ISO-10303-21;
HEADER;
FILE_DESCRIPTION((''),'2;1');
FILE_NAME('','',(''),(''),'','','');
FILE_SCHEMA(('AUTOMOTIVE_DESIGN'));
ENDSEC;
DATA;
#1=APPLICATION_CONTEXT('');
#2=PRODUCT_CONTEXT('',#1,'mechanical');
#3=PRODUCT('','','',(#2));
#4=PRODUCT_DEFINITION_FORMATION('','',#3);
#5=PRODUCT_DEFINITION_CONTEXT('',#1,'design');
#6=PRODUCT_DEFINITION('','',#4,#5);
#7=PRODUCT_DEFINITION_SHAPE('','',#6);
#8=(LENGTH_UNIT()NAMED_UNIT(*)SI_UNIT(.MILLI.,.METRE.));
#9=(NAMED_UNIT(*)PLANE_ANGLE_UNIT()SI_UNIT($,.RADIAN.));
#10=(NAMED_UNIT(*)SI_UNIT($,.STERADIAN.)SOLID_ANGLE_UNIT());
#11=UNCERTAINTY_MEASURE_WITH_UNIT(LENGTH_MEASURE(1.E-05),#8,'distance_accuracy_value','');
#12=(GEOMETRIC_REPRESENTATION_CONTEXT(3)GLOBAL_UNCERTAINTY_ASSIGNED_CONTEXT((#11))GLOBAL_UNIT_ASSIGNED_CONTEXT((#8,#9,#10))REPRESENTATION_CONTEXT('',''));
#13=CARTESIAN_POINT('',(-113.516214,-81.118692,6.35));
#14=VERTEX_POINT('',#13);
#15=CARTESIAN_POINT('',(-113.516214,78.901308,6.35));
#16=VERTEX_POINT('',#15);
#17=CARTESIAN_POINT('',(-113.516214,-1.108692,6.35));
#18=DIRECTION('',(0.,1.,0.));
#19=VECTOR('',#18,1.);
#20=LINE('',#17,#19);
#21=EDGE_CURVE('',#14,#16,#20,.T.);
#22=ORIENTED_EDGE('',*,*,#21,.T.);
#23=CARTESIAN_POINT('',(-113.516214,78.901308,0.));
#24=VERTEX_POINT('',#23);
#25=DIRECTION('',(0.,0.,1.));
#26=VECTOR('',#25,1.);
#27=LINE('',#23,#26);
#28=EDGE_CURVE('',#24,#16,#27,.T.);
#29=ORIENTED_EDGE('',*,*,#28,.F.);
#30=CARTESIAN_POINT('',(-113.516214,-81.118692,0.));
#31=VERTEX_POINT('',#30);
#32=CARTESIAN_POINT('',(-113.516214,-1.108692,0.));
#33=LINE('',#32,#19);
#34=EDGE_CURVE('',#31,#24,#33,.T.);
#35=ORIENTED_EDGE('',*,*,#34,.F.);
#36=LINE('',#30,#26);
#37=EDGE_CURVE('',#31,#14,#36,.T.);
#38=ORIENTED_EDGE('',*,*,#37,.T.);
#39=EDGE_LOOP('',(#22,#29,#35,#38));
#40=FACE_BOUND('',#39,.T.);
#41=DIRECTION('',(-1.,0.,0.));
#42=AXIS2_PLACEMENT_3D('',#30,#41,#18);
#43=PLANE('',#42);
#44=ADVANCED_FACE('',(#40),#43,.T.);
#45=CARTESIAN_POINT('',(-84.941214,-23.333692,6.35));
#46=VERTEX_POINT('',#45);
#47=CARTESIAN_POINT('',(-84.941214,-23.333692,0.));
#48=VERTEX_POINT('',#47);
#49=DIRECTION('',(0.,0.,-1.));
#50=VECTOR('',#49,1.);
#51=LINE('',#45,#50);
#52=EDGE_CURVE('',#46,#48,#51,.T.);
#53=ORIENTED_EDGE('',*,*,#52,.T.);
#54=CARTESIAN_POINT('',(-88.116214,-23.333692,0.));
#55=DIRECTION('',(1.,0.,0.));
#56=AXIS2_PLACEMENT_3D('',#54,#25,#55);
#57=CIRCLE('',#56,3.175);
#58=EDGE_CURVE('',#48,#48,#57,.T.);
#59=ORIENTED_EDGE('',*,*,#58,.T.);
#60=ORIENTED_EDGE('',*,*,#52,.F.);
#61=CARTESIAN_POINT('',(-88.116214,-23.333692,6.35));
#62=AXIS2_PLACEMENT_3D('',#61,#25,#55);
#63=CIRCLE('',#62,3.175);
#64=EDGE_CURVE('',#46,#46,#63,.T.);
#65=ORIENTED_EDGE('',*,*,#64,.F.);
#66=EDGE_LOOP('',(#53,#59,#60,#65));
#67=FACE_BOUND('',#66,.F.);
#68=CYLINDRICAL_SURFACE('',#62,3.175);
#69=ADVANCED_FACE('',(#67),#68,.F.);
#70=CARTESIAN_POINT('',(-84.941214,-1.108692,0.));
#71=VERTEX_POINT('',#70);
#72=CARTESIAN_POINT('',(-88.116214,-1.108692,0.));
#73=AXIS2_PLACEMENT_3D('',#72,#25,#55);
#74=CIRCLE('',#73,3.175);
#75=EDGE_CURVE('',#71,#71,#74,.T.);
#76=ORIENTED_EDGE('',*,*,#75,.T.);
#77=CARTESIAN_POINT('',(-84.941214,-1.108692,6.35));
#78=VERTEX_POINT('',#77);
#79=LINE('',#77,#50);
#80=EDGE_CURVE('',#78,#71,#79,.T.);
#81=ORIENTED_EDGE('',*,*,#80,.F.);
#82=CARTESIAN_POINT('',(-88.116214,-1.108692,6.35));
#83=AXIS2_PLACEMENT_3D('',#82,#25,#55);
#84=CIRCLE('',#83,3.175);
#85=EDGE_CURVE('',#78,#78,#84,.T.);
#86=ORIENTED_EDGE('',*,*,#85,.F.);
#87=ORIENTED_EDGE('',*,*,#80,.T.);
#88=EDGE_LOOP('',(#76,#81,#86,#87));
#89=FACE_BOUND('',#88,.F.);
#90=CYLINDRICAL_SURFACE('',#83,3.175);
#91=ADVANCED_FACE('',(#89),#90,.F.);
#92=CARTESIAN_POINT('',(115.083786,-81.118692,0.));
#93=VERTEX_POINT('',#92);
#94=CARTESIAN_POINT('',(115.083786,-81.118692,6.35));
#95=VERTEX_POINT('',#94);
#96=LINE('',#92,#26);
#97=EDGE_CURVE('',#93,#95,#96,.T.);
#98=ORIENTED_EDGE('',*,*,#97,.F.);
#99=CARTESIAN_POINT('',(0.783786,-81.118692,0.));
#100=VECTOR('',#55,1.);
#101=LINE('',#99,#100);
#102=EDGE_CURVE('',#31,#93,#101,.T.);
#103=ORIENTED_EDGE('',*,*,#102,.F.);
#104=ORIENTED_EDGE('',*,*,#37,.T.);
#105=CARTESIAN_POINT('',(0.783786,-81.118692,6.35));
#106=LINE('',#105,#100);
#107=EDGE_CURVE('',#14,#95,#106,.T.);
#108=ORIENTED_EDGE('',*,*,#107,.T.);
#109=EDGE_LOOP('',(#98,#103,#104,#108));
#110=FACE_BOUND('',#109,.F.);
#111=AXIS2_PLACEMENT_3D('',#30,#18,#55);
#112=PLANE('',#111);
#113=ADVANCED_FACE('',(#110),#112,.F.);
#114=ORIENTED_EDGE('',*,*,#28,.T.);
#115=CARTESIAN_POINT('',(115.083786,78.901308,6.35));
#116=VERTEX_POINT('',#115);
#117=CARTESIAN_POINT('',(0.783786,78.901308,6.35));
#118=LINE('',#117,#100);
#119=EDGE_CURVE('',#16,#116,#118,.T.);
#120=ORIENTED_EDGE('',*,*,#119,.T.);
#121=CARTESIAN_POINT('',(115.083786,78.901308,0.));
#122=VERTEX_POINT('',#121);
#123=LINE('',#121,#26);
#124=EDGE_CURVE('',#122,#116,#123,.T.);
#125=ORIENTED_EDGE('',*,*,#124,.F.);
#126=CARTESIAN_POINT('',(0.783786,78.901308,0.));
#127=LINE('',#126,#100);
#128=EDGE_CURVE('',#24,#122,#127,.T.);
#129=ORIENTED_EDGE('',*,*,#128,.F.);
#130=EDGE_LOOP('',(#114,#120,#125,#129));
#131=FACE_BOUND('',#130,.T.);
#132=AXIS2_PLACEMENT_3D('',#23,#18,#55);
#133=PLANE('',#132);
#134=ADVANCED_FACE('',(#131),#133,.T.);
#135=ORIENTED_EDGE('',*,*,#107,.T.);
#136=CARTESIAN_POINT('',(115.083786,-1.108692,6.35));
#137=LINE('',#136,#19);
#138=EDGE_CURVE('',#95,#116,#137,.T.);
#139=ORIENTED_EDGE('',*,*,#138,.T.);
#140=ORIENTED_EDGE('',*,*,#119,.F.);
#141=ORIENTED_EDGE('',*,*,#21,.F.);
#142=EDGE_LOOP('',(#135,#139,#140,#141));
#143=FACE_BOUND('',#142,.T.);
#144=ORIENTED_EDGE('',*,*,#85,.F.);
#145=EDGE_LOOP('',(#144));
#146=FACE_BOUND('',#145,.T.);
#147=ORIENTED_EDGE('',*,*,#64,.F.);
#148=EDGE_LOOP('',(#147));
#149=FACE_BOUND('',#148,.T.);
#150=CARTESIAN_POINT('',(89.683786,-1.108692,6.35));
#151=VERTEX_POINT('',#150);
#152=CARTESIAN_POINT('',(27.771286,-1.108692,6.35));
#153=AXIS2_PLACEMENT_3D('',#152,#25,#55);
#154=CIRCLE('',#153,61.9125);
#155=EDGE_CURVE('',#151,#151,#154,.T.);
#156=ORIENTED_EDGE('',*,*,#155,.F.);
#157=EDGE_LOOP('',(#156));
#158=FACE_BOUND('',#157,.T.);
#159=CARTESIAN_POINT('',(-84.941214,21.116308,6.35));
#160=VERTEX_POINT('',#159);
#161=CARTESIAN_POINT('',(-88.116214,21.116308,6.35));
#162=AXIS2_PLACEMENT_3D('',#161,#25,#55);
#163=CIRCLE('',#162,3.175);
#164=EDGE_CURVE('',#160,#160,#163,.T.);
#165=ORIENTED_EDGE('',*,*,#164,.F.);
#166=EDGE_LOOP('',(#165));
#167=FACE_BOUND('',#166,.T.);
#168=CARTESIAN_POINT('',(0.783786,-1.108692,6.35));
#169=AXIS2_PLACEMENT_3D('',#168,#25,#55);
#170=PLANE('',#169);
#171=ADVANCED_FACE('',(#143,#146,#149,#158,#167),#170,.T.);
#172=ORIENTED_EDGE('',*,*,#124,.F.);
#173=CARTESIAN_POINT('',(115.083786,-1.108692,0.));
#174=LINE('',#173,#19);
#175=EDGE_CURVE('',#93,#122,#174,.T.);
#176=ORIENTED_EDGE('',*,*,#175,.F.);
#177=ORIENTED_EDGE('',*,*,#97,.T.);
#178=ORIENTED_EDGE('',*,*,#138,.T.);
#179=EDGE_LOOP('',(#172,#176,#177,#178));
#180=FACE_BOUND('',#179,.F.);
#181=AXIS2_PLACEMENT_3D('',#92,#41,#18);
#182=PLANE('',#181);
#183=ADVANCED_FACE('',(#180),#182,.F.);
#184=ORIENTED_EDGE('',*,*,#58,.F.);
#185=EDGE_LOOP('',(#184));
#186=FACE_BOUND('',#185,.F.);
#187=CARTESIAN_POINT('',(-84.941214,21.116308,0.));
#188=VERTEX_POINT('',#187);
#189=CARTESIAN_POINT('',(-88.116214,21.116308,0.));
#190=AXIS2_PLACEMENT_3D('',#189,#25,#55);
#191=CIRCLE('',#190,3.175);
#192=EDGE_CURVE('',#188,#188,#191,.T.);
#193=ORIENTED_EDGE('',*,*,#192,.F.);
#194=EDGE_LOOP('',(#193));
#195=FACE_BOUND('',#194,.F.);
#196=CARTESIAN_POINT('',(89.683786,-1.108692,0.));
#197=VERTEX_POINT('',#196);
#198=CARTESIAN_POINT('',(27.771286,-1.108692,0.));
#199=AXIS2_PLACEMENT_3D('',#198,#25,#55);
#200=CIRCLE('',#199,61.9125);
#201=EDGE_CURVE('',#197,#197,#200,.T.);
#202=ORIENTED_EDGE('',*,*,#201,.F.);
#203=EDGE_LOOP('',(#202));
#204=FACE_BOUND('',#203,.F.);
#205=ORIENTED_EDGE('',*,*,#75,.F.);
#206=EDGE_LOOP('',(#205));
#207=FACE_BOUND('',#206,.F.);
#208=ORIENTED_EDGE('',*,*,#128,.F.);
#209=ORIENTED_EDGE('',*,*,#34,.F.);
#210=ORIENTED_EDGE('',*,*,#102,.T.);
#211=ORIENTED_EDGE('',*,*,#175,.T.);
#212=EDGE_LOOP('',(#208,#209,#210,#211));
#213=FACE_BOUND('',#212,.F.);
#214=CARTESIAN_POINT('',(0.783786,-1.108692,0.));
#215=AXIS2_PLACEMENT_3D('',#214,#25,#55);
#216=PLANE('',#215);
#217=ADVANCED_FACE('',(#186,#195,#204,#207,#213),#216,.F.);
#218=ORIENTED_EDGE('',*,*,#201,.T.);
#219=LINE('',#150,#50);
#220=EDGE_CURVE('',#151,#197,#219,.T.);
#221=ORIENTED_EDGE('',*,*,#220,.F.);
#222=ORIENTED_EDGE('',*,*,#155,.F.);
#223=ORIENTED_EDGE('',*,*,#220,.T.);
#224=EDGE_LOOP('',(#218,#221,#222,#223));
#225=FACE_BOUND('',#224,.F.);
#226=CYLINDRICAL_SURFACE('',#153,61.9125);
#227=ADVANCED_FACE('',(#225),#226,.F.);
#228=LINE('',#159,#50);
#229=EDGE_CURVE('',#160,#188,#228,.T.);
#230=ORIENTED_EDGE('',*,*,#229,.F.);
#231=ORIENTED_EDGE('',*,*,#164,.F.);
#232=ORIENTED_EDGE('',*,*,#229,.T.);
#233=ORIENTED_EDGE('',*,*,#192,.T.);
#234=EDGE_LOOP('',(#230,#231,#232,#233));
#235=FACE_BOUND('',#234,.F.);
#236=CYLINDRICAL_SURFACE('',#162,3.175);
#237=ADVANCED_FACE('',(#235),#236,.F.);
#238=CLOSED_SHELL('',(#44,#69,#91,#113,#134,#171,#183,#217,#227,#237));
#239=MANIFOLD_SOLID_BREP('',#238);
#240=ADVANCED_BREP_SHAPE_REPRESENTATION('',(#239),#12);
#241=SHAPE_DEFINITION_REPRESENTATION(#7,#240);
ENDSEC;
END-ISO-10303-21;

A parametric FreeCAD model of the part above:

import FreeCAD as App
import Part
import Sketcher

V = App.Vector
Q = App.Units.Quantity


def add_polygon(sketch, points):
    """Adds a closed chain of lines whose ends are joined by coincident constraints."""
    first, n = sketch.GeometryCount, len(points)
    for a, b in zip(points, points[1:] + points[:1]):
        sketch.addGeometry(Part.LineSegment(App.Vector(*a, 0), App.Vector(*b, 0)), False)
    for i in range(n):
        sketch.addConstraint(Sketcher.Constraint("Coincident", first + i, 2, first + (i + 1) % n, 1))

doc = App.newDocument("Part")
body = doc.addObject("PartDesign::Body", "Body")

# Sketch on XY plane
sketch1 = body.newObject("Sketcher::SketchObject", "Sketch")
sketch1.AttachmentSupport = (doc.getObject("XY_Plane"), [""])
sketch1.MapMode = "FlatFace"
add_polygon(sketch1, [(-114, 79), (-114, -81), (115, -81), (115, 79)])  # lines 0-3
sketch1.addConstraint([
    Sketcher.Constraint("Vertical", 0),
    Sketcher.Constraint("Horizontal", 1),
    Sketcher.Constraint("Vertical", 2),
    Sketcher.Constraint("Horizontal", 3),
    Sketcher.Constraint("DistanceX", 1, 1, 1, 2, Q("9 in")),
    Sketcher.Constraint("DistanceY", 0, 2, 0, 1, Q("6.3 in")),
    Sketcher.Constraint("DistanceY", 0, 2, -1, 1, Q("81.118692 mm")),
    Sketcher.Constraint("DistanceX", 0, 2, -1, 1, Q("113.516214 mm")),
])
pad1 = body.newObject("PartDesign::Pad", "Pad")
pad1.Profile = sketch1
pad1.Length = Q("0.25 in")

# Sketch on XY plane
sketch2 = body.newObject("Sketcher::SketchObject", "Sketch001")
sketch2.AttachmentSupport = (doc.getObject("XY_Plane"), [""])
sketch2.MapMode = "FlatFace"
sketch2.AttachmentOffset = App.Placement(V(0, 0, 0.25 * 25.4), App.Rotation())
sketch2.addGeometry(Part.Circle(V(28, -1, 0), V(0, 0, 1), 62), False)
sketch2.addConstraint([
    Sketcher.Constraint("Diameter", 0, Q("4.875 in")),
    Sketcher.Constraint("DistanceX", -1, 1, 0, 3, Q("27.771286 mm")),
    Sketcher.Constraint("DistanceY", 0, 3, -1, 1, Q("1.108692 mm")),
])
pocket1 = body.newObject("PartDesign::Pocket", "Pocket")
pocket1.Profile = sketch2
pocket1.Length = Q("1 in")

# Sketch on XY plane
sketch3 = body.newObject("Sketcher::SketchObject", "Sketch002")
sketch3.AttachmentSupport = (doc.getObject("XY_Plane"), [""])
sketch3.MapMode = "FlatFace"
sketch3.AttachmentOffset = App.Placement(V(0, 0, 0.25 * 25.4), App.Rotation())
sketch3.addGeometry([
    Part.Circle(V(-88.1, -23.3, 0), V(0, 0, 1), 3.2),
    Part.Circle(V(-88.1, -1.1, 0), V(0, 0, 1), 3.2),
    Part.Circle(V(-88.1, 21.1, 0), V(0, 0, 1), 3.2),
], False)
sketch3.addConstraint([
    Sketcher.Constraint("Equal", 0, 1),
    Sketcher.Constraint("Equal", 1, 2),
    Sketcher.Constraint("Vertical", 0, 3, 1, 3),
    Sketcher.Constraint("Vertical", 1, 3, 2, 3),
    Sketcher.Constraint("Diameter", 0, Q("0.25 in")),
    Sketcher.Constraint("DistanceY", 0, 3, 2, 3, Q("1.75 in")),
    Sketcher.Constraint("DistanceY", 0, 3, 1, 3, Q("0.875 in")),
    Sketcher.Constraint("DistanceY", 0, 3, -1, 1, Q("23.333692 mm")),
    Sketcher.Constraint("DistanceX", 0, 3, -1, 1, Q("88.116214 mm")),
])
pocket2 = body.newObject("PartDesign::Pocket", "Pocket001")
pocket2.Profile = sketch3
pocket2.Length = Q("1 in")

doc.recompute()
